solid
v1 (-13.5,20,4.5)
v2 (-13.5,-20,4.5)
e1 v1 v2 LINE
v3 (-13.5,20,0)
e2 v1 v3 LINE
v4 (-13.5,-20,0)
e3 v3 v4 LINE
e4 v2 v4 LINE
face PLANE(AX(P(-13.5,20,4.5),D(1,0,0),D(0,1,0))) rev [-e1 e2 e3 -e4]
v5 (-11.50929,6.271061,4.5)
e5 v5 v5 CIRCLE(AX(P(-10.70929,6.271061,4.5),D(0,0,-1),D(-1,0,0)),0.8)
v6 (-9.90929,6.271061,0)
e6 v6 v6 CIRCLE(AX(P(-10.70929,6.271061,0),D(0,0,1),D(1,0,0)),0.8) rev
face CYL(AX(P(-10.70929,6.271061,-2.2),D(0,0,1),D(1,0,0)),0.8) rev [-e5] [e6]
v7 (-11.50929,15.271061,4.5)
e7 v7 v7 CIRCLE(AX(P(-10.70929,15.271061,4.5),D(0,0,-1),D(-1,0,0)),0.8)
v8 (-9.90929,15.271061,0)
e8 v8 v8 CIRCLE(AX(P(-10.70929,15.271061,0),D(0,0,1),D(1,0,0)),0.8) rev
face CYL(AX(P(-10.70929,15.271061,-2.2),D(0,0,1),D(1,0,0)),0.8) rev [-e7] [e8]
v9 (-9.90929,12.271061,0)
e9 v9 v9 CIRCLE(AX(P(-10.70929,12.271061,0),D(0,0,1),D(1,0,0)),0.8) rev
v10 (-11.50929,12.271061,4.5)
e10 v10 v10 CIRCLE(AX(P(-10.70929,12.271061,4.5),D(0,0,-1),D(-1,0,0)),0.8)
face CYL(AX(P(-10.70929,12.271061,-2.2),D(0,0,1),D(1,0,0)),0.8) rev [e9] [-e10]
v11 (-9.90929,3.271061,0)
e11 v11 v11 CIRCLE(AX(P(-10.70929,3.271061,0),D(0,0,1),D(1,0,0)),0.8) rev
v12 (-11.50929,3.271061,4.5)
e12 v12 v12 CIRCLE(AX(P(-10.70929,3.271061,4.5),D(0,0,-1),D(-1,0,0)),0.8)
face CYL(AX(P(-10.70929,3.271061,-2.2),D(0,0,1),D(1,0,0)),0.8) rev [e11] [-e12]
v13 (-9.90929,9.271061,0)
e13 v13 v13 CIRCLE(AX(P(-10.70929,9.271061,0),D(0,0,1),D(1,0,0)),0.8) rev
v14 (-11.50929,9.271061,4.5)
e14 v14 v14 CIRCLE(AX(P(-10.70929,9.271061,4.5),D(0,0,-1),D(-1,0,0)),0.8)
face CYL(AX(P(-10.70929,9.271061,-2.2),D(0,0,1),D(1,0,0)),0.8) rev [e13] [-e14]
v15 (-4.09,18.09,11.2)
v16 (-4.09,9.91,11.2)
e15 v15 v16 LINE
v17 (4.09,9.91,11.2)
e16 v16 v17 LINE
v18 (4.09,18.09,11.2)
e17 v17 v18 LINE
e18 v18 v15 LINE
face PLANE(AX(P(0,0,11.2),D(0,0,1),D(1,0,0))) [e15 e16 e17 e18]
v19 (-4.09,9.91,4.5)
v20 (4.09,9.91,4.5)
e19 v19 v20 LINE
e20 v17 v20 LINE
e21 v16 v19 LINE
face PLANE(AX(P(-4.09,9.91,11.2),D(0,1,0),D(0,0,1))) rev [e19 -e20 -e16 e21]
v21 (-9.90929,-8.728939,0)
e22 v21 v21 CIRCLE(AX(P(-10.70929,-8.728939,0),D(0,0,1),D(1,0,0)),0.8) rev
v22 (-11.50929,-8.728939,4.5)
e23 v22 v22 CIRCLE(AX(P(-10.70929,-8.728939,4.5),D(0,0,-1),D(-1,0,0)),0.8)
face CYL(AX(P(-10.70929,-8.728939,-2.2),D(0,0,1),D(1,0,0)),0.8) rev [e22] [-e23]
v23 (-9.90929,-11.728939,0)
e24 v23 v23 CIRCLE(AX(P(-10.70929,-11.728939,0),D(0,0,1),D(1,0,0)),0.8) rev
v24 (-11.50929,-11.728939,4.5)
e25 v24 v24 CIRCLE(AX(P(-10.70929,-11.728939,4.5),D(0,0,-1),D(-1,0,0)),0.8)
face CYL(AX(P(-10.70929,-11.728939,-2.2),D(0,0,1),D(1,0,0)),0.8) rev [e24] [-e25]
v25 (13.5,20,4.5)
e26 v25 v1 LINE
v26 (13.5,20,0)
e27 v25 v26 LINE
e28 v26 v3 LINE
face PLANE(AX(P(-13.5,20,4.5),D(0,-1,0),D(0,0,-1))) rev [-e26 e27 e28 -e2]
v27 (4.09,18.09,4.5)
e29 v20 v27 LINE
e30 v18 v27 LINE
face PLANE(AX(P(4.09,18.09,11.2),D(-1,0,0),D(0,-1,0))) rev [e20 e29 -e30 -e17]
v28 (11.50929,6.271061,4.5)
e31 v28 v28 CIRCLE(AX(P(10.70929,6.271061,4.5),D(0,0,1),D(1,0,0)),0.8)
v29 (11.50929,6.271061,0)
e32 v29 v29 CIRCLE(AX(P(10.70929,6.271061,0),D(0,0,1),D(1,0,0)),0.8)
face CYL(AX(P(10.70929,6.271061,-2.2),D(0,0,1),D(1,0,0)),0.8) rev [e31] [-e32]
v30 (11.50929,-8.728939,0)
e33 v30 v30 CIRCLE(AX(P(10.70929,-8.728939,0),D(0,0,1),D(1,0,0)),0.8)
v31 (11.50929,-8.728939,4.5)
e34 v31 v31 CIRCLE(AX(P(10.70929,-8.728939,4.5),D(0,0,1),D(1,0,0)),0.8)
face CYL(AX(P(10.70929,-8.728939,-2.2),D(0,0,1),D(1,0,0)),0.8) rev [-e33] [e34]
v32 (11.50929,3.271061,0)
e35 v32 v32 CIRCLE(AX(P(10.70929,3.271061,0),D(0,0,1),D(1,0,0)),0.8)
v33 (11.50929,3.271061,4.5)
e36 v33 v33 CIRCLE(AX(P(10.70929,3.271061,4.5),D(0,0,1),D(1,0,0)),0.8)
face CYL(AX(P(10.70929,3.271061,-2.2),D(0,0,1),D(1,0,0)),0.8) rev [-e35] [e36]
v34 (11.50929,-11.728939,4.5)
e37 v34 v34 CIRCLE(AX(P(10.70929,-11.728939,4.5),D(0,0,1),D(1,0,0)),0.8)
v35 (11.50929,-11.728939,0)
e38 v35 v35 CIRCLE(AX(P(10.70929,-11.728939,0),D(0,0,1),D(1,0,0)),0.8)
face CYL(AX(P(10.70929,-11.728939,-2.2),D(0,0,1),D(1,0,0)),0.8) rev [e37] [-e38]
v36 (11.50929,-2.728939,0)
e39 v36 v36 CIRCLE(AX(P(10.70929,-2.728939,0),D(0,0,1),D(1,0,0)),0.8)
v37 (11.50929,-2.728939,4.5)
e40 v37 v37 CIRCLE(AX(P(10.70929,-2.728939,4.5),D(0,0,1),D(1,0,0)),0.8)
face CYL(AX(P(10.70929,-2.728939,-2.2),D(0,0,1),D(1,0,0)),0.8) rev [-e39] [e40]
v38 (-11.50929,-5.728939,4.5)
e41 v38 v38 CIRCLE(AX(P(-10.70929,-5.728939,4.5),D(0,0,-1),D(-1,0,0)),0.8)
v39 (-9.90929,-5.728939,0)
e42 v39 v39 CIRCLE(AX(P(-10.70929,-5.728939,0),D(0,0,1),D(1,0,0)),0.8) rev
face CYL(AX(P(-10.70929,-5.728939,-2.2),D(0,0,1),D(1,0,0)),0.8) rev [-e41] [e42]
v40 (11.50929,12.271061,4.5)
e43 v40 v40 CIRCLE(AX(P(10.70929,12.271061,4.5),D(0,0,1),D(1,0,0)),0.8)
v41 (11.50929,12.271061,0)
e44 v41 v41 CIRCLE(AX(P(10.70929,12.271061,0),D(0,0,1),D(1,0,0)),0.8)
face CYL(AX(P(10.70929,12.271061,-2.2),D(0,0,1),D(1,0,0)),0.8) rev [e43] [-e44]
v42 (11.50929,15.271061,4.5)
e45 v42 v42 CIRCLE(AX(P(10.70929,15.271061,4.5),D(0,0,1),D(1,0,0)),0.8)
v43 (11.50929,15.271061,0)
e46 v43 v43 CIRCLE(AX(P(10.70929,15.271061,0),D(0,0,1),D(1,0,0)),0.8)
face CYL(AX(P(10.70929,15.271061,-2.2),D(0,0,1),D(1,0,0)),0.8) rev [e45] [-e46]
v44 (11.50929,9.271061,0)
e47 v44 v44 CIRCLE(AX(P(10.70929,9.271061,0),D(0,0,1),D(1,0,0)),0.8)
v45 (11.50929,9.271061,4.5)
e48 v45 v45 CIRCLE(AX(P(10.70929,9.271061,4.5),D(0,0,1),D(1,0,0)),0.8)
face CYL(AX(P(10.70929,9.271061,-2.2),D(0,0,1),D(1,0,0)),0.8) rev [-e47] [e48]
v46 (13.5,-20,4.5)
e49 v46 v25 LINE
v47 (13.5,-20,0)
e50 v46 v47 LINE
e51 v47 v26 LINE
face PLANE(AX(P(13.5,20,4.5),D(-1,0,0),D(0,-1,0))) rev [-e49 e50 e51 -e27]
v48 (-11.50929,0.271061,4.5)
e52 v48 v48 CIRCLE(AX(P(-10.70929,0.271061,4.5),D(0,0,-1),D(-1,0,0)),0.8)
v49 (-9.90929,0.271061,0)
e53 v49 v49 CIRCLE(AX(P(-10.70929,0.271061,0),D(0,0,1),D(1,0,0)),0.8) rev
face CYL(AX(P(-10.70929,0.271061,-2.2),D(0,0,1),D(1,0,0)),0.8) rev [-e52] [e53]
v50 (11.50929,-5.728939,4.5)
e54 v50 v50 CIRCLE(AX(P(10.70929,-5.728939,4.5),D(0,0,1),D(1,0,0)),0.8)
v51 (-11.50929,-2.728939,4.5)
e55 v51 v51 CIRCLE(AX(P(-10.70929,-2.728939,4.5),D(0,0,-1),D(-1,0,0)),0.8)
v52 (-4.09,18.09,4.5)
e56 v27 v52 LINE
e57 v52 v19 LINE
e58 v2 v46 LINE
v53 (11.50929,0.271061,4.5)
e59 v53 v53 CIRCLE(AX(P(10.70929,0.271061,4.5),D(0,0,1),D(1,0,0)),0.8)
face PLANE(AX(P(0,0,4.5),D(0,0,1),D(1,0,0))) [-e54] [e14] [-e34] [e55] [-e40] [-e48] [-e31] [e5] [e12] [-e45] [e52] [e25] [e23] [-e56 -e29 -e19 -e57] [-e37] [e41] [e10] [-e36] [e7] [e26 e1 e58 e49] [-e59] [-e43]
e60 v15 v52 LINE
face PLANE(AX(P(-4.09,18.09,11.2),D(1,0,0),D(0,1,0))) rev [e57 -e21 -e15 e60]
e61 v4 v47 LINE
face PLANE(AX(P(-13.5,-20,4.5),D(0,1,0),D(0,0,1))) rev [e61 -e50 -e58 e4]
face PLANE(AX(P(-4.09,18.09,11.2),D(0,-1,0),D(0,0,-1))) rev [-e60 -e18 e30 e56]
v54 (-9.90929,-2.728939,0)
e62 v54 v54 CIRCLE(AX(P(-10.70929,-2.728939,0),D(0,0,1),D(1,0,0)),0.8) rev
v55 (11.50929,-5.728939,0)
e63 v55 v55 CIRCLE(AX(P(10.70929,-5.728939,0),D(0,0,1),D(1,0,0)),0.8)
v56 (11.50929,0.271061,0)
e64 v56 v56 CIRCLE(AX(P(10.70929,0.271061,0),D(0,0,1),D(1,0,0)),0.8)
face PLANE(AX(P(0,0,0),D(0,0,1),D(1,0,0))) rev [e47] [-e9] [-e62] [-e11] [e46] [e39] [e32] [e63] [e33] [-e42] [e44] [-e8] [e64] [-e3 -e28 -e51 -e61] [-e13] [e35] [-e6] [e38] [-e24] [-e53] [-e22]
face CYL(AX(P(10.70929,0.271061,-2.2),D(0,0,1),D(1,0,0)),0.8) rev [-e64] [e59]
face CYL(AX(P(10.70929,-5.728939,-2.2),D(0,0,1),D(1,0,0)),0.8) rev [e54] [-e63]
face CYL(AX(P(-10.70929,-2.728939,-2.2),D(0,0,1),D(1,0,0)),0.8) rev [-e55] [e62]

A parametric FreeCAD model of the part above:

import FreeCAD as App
import Part
import Sketcher
from FreeCAD import Vector
Q = App.Units.Quantity


def add_polygon(sketch, points):
    """Adds a closed chain of lines whose ends are joined by coincident constraints."""
    first, n = sketch.GeometryCount, len(points)
    for a, b in zip(points, points[1:] + points[:1]):
        sketch.addGeometry(Part.LineSegment(App.Vector(*a, 0), App.Vector(*b, 0)), False)
    for i in range(n):
        sketch.addConstraint(Sketcher.Constraint("Coincident", first + i, 2, first + (i + 1) % n, 1))

doc = App.newDocument("Part")
body = doc.addObject("PartDesign::Body", "Body")

# Sketch on XY plane
sketch1 = body.newObject("Sketcher::SketchObject", "Sketch")
sketch1.AttachmentSupport = (doc.getObject("XY_Plane"), [""])
sketch1.MapMode = "FlatFace"
add_polygon(sketch1, [(-14, 20), (-14, -20), (14, -20), (14, 20)])  # lines 0-3
sketch1.addConstraint([
    Sketcher.Constraint("Vertical", 0),
    Sketcher.Constraint("Horizontal", 1),
    Sketcher.Constraint("Vertical", 2),
    Sketcher.Constraint("Horizontal", 3),
    Sketcher.Constraint("Symmetric", 0, 2, 2, 2, -1, 1),
    Sketcher.Constraint("DistanceX", 1, 1, 1, 2, Q("27 mm")),
    Sketcher.Constraint("DistanceY", 0, 2, 0, 1, Q("40 mm")),
])
pad1 = body.newObject("PartDesign::Pad", "Pad")
pad1.Profile = sketch1
pad1.Length = 4.5

# Sketch on XY plane
sketch2 = body.newObject("Sketcher::SketchObject", "Sketch001")
sketch2.AttachmentSupport = (doc.getObject("XY_Plane"), [""])
sketch2.MapMode = "FlatFace"
sketch2.AttachmentOffset = App.Placement(Vector(0, 0, 4.5), App.Rotation())
add_polygon(sketch2, [(-4, 18), (-4, 10), (4, 10), (4, 18)])  # lines 0-3
sketch2.addConstraint([
    Sketcher.Constraint("Vertical", 0),
    Sketcher.Constraint("Horizontal", 1),
    Sketcher.Constraint("Vertical", 2),
    Sketcher.Constraint("Horizontal", 3),
    Sketcher.Constraint("Equal", 3, 0),
    Sketcher.Constraint("DistanceX", 1, 1, 1, 2, Q("8.18 mm")),
    Sketcher.Constraint("DistanceX", 0, 2, -1, 1, Q("4.09 mm")),
    Sketcher.Constraint("DistanceY", -1, 1, 0, 2, Q("9.91 mm")),
])
pad2 = body.newObject("PartDesign::Pad", "Pad001")
pad2.Profile = sketch2
pad2.Length = 6.7

# Sketch on XY plane
sketch3 = body.newObject("Sketcher::SketchObject", "Sketch002")
sketch3.AttachmentSupport = (doc.getObject("XY_Plane"), [""])
sketch3.MapMode = "FlatFace"
sketch3.AttachmentOffset = App.Placement(Vector(0, 0, 4.5), App.Rotation())
sketch3.addGeometry([
    Part.Circle(Vector(10.7, 15.3, 0), Vector(0, 0, 1), 0.8),  # 0
    Part.Circle(Vector(10.7, 12.3, 0), Vector(0, 0, 1), 0.8),  # 1
    Part.Circle(Vector(10.7, 9.3, 0), Vector(0, 0, 1), 0.8),  # 2
    Part.Circle(Vector(10.7, 6.3, 0), Vector(0, 0, 1), 0.8),  # 3
    Part.Circle(Vector(10.7, 3.3, 0), Vector(0, 0, 1), 0.8),  # 4
    Part.Circle(Vector(10.7, 0.3, 0), Vector(0, 0, 1), 0.8),  # 5
    Part.Circle(Vector(10.7, -2.7, 0), Vector(0, 0, 1), 0.8),  # 6
    Part.Circle(Vector(10.7, -5.7, 0), Vector(0, 0, 1), 0.8),  # 7
    Part.Circle(Vector(10.7, -8.7, 0), Vector(0, 0, 1), 0.8),  # 8
    Part.Circle(Vector(10.7, -11.7, 0), Vector(0, 0, 1), 0.8),  # 9
], False)
sketch3.addConstraint([
    Sketcher.Constraint("Equal", 0, 1),
    Sketcher.Constraint("Equal", 1, 2),
    Sketcher.Constraint("Equal", 2, 3),
    Sketcher.Constraint("Equal", 3, 4),
    Sketcher.Constraint("Equal", 4, 5),
    Sketcher.Constraint("Equal", 5, 6),
    Sketcher.Constraint("Equal", 6, 7),
    Sketcher.Constraint("Equal", 7, 8),
    Sketcher.Constraint("Equal", 8, 9),
    Sketcher.Constraint("Vertical", 0, 3, 1, 3),
    Sketcher.Constraint("Vertical", 1, 3, 2, 3),
    Sketcher.Constraint("Vertical", 2, 3, 3, 3),
    Sketcher.Constraint("Vertical", 3, 3, 4, 3),
    Sketcher.Constraint("Vertical", 4, 3, 5, 3),
    Sketcher.Constraint("Vertical", 5, 3, 6, 3),
    Sketcher.Constraint("Vertical", 6, 3, 7, 3),
    Sketcher.Constraint("Vertical", 7, 3, 8, 3),
    Sketcher.Constraint("Vertical", 8, 3, 9, 3),
    Sketcher.Constraint("Diameter", 0, Q("1.6 mm")),
    Sketcher.Constraint("DistanceY", 1, 3, 0, 3, Q("3 mm")),
    Sketcher.Constraint("DistanceY", 2, 3, 1, 3, Q("3 mm")),
    Sketcher.Constraint("DistanceY", 3, 3, 2, 3, Q("3 mm")),
    Sketcher.Constraint("DistanceY", 4, 3, 3, 3, Q("3 mm")),
    Sketcher.Constraint("DistanceY", 5, 3, 4, 3, Q("3 mm")),
    Sketcher.Constraint("DistanceY", 6, 3, 5, 3, Q("3 mm")),
    Sketcher.Constraint("DistanceY", 7, 3, 6, 3, Q("3 mm")),
    Sketcher.Constraint("DistanceY", 8, 3, 7, 3, Q("3 mm")),
    Sketcher.Constraint("DistanceY", 9, 3, 8, 3, Q("3 mm")),
    Sketcher.Constraint("DistanceX", -1, 1, 0, 3, Q("10.70929 mm")),
    Sketcher.Constraint("DistanceY", -1, 1, 0, 3, Q("15.271061 mm")),
])
pocket1 = body.newObject("PartDesign::Pocket", "Pocket")
pocket1.Profile = sketch3
pocket1.Length = 6.7
doc.recompute()

mirrored = body.newObject("PartDesign::Mirrored", "Mirrored")
mirrored.Originals = [pocket1]
mirrored.MirrorPlane = (doc.getObject("YZ_Plane"), [""])
body.Tip = mirrored

doc.recompute()
